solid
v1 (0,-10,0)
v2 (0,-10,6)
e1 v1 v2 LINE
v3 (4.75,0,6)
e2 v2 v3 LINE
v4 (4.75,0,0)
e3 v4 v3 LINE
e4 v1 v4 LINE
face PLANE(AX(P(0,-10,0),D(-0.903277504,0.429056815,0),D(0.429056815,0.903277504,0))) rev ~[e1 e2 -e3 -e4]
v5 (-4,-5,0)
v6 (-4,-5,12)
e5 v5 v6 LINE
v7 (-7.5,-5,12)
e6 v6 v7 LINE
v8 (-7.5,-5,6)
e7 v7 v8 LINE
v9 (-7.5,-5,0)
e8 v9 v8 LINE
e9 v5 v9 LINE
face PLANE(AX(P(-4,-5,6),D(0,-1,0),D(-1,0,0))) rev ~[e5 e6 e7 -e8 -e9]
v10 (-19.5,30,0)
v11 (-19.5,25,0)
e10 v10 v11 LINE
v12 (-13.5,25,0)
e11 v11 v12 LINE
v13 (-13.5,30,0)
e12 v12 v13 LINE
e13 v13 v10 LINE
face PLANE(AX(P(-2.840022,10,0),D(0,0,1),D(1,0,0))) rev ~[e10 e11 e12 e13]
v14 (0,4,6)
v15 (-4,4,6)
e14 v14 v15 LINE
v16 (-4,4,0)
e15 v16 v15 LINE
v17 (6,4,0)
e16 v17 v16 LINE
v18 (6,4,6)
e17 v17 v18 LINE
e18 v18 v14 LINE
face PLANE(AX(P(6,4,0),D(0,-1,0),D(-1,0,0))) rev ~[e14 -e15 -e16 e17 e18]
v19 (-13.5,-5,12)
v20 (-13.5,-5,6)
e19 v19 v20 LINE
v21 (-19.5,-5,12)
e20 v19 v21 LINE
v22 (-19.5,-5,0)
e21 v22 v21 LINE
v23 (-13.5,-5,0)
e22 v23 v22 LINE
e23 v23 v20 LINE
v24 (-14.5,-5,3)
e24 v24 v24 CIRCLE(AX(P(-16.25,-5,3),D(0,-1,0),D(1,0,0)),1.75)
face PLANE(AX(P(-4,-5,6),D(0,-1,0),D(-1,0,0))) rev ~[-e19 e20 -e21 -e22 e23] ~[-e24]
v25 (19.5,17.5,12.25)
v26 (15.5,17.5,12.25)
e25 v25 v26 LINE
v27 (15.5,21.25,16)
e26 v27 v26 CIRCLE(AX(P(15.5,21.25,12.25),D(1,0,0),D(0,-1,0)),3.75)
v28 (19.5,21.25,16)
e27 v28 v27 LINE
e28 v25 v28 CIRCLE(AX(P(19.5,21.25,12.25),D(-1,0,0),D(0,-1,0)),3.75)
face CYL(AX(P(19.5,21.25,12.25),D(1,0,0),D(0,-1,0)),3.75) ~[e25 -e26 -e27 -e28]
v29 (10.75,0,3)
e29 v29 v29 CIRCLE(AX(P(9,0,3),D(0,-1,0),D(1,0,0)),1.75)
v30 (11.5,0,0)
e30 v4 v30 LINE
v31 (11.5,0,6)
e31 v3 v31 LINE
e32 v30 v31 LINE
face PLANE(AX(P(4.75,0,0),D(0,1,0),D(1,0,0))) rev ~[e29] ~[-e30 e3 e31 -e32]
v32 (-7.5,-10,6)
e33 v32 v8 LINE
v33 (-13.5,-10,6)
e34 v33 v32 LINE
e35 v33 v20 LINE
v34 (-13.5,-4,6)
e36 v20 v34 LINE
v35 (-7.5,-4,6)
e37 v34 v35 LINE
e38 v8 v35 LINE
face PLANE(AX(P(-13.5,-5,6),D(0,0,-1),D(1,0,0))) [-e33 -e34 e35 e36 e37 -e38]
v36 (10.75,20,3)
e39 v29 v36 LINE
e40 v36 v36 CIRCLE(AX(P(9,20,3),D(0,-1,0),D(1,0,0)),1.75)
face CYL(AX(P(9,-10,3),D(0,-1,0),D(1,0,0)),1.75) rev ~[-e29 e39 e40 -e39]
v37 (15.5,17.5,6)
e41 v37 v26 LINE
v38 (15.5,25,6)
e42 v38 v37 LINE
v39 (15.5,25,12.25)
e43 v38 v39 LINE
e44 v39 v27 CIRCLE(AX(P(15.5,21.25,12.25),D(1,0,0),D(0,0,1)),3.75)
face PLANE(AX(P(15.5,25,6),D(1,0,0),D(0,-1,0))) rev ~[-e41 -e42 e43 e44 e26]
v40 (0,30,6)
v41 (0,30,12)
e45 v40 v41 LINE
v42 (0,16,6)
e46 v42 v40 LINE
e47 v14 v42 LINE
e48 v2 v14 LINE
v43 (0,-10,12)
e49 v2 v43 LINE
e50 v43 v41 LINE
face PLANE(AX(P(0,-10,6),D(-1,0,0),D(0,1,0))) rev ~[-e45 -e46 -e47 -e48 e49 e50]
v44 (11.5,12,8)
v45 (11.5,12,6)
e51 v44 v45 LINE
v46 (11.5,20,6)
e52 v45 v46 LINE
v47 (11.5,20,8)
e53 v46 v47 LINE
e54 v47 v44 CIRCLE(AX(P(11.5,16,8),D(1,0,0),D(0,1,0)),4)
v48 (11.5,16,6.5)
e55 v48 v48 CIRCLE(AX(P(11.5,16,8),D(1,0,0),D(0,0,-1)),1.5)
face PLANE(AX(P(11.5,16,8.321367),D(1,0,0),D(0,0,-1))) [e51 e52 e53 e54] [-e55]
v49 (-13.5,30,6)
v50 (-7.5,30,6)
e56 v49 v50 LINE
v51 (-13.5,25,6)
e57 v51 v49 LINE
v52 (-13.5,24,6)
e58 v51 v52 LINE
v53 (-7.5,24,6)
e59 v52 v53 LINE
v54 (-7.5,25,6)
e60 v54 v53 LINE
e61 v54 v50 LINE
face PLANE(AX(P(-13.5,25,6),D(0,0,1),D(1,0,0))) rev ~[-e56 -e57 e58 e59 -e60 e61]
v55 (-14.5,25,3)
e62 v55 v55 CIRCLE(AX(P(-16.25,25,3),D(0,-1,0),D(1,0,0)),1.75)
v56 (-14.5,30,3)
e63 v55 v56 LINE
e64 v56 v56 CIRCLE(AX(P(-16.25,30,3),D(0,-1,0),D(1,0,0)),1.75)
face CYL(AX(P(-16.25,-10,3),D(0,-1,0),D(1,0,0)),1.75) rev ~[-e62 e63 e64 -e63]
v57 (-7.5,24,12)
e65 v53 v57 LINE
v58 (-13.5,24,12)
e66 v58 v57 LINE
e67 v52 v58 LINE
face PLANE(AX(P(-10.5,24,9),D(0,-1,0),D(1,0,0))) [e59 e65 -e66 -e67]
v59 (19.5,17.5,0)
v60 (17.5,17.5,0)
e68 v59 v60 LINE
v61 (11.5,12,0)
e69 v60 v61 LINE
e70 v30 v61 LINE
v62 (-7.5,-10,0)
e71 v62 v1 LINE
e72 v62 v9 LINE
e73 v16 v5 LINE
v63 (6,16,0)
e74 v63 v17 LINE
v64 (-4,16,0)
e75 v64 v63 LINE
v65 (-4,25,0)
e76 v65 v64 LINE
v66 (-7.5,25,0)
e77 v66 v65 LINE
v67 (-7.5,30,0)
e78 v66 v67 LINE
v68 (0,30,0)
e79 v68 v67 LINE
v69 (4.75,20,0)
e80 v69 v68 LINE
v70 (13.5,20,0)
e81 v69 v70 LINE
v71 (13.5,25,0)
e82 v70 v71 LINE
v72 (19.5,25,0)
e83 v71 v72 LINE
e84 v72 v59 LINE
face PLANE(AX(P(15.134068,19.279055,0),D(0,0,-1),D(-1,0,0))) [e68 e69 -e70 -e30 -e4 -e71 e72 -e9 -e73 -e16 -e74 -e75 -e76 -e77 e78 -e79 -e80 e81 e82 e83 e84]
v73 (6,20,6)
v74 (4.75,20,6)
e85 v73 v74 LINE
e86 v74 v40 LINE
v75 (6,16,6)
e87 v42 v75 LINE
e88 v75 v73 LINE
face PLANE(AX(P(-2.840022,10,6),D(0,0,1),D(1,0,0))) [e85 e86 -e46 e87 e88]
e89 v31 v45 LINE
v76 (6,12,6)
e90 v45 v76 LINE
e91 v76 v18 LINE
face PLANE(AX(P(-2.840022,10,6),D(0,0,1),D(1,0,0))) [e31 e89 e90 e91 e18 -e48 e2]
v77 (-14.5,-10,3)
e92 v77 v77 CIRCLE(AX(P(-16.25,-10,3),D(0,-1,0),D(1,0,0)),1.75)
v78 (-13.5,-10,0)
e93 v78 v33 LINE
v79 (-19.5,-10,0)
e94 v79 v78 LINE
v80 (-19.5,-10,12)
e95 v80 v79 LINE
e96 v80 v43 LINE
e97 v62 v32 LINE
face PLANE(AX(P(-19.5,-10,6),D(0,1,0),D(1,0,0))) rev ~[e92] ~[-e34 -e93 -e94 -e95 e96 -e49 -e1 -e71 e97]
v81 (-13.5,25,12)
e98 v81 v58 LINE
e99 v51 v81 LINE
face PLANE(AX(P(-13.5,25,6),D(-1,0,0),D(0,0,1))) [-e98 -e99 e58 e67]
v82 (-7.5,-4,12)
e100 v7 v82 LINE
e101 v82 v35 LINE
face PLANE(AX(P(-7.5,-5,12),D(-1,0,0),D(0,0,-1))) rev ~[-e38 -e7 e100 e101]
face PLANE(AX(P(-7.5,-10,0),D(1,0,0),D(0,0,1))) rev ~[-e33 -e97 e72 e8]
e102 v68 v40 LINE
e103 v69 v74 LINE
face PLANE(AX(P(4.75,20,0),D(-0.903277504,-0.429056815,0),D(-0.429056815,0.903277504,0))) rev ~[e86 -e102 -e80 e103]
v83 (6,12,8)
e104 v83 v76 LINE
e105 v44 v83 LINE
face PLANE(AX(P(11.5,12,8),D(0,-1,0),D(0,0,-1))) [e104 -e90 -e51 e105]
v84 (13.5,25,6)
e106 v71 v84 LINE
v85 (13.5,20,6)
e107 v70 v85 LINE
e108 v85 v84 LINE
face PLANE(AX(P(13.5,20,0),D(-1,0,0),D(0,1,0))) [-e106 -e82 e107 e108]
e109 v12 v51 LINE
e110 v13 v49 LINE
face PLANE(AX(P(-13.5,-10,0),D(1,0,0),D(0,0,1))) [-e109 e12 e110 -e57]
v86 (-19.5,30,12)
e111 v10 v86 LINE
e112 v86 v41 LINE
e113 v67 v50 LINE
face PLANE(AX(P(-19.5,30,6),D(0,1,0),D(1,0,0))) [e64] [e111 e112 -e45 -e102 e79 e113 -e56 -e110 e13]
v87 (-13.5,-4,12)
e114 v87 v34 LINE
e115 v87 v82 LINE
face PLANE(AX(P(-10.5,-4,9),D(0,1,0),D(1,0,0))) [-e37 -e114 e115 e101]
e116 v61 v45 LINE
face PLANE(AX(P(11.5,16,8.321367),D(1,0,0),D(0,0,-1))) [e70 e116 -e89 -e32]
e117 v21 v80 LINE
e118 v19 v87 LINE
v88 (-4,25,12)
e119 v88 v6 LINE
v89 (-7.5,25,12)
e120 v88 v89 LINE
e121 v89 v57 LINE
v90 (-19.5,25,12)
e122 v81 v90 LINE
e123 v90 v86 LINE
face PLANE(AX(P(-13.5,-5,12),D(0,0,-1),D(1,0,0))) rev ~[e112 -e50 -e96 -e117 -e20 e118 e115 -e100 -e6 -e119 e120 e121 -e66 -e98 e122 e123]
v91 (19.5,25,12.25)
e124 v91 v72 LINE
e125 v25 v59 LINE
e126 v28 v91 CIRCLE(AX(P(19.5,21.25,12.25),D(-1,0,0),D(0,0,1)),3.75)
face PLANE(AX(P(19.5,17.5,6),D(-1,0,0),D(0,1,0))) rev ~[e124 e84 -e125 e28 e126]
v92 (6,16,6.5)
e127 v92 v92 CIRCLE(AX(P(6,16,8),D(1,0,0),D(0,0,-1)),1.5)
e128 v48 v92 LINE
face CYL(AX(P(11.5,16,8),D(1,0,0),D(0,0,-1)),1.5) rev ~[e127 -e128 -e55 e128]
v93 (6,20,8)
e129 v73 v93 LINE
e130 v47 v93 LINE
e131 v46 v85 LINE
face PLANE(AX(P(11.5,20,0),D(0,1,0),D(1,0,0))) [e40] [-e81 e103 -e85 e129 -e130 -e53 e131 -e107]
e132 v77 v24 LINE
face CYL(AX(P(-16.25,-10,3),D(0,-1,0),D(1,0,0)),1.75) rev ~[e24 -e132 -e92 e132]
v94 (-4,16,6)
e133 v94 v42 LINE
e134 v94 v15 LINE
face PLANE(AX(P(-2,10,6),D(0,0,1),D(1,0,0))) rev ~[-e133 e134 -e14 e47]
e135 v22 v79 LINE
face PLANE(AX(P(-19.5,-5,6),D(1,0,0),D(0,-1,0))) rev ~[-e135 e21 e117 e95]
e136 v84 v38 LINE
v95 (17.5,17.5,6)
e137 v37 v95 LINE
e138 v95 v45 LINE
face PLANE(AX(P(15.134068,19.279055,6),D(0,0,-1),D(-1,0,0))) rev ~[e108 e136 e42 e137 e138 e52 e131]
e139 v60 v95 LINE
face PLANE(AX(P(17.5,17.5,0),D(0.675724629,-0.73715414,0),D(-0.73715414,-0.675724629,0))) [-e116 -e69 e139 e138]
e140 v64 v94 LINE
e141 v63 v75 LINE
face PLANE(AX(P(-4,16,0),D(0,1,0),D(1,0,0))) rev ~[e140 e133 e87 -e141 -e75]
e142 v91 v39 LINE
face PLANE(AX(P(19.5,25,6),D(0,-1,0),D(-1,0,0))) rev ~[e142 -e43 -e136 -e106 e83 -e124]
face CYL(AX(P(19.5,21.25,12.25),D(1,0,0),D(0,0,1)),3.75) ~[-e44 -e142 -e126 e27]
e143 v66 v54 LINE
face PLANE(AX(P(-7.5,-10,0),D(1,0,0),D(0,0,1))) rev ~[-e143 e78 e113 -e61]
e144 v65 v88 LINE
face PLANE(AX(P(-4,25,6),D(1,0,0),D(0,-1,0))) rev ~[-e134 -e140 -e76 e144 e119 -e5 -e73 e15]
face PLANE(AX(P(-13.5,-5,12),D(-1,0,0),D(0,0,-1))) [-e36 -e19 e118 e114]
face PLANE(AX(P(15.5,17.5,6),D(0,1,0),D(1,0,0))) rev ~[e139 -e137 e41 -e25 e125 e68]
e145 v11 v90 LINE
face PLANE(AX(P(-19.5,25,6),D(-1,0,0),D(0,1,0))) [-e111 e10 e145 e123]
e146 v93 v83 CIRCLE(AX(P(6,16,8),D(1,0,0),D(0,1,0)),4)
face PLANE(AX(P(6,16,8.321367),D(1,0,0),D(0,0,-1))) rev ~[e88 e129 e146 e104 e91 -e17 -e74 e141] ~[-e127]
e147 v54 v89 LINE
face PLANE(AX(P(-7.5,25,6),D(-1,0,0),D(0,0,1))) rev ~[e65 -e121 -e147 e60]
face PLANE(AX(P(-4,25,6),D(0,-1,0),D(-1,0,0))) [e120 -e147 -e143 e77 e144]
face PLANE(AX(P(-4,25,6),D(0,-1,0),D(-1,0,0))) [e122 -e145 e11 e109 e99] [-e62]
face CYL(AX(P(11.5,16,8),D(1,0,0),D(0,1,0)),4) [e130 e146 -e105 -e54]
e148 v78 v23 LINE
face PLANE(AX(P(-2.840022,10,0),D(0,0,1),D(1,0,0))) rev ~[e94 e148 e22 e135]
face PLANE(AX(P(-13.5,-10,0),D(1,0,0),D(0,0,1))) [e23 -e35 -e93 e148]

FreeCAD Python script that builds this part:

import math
import FreeCAD as App
import Part
import Sketcher

V = App.Vector
Q = App.Units.Quantity


def add_polygon(sketch, points):
    """Adds a closed chain of lines whose ends are joined by coincident constraints."""
    first, n = sketch.GeometryCount, len(points)
    for a, b in zip(points, points[1:] + points[:1]):
        sketch.addGeometry(Part.LineSegment(App.Vector(*a, 0), App.Vector(*b, 0)), False)
    for i in range(n):
        sketch.addConstraint(Sketcher.Constraint("Coincident", first + i, 2, first + (i + 1) % n, 1))

doc = App.newDocument("Part")
body = doc.addObject("PartDesign::Body", "Body")

sketch1 = doc.addObject("Sketcher::SketchObject", "Sketch")
body.addObject(sketch1)
sketch1.AttachmentSupport = (doc.XY_Plane, [""])
sketch1.MapMode = "FlatFace"
add_polygon(sketch1, [(6, 4), (-4, 4), (-4, -5), (-20, -5), (-20, -10), (0, -10), (5, 0), (12, 0), (12, 20), (5, 20), (0, 30), (-20, 30), (-20, 25), (-4, 25), (-4, 16), (6, 16)])
sketch1.addConstraint([
    Sketcher.Constraint("Horizontal", 0),
    Sketcher.Constraint("Vertical", 1),
    Sketcher.Constraint("Horizontal", 2),
    Sketcher.Constraint("Vertical", 3),
    Sketcher.Constraint("Horizontal", 4),
    Sketcher.Constraint("Horizontal", 6),
    Sketcher.Constraint("Vertical", 7),
    Sketcher.Constraint("Horizontal", 8),
    Sketcher.Constraint("Horizontal", 10),
    Sketcher.Constraint("Vertical", 11),
    Sketcher.Constraint("Horizontal", 12),
    Sketcher.Constraint("Vertical", 13),
    Sketcher.Constraint("Horizontal", 14),
    Sketcher.Constraint("Vertical", 15),
    Sketcher.Constraint("PointOnObject", 4, 2, -2),
    Sketcher.Constraint("PointOnObject", 5, 2, -1),
    Sketcher.Constraint("PointOnObject", 9, 2, -2),
    Sketcher.Constraint("Vertical", 5, 2, 8, 2),
    Sketcher.Constraint("Vertical", 3, 2, 10, 2),
    Sketcher.Constraint("Vertical", 1, 2, 12, 2),
    Sketcher.Constraint("Equal", 3, 11),
    Sketcher.Constraint("Equal", 1, 13),
    Sketcher.Constraint("Equal", 5, 9),
    Sketcher.Constraint("DistanceX", 0, 2, 0, 1, Q("10 mm")),
    Sketcher.Constraint("DistanceY", 1, 2, 1, 1, Q("9 mm")),
    Sketcher.Constraint("DistanceY", 3, 2, 3, 1, Q("5 mm")),
    Sketcher.Constraint("DistanceY", 7, 1, 7, 2, Q("20 mm")),
    Sketcher.Constraint("DistanceY", 15, 2, 15, 1, Q("12 mm")),
    Sketcher.Constraint("DistanceX", 2, 2, 2, 1, Q("15.5 mm")),
    Sketcher.Constraint("DistanceX", 4, 1, 4, 2, Q("19.5 mm")),
    Sketcher.Constraint("DistanceX", 2, 2, 6, 2, Q("31 mm")),
    Sketcher.Constraint("DistanceX", 6, 1, 6, 2, Q("6.75 mm")),
])
pad1 = doc.addObject("PartDesign::Pad", "Pad")
body.addObject(pad1)
pad1.Profile = sketch1
pad1.Length = 6

sketch2 = doc.addObject("Sketcher::SketchObject", "Sketch001")
body.addObject(sketch2)
sketch2.AttachmentSupport = (doc.XZ_Plane, [""])
sketch2.MapMode = "FlatFace"
sketch2.AttachmentOffset = App.Placement(V(0, 0, 10), App.Rotation())
sketch2.addGeometry([
    Part.Circle(V(9, 3, 0), V(0, 0, 1), 1.8),
    Part.Circle(V(-16.2, 3, 0), V(0, 0, 1), 1.8),
], False)
sketch2.addConstraint([
    Sketcher.Constraint("Equal", 0, 1),
    Sketcher.Constraint("Horizontal", 0, 3, 1, 3),
    Sketcher.Constraint("Diameter", 0, Q("3.5 mm")),
    Sketcher.Constraint("DistanceX", -1, 1, 0, 3, Q("9 mm")),
    Sketcher.Constraint("DistanceY", -1, 1, 0, 3, Q("3 mm")),
    Sketcher.Constraint("DistanceX", 1, 3, -1, 1, Q("16.25 mm")),
])
pocket1 = doc.addObject("PartDesign::Pocket", "Pocket")
body.addObject(pocket1)
pocket1.Profile = sketch2
pocket1.Type = "ThroughAll"

sketch3 = doc.addObject("Sketcher::SketchObject", "Sketch002")
body.addObject(sketch3)
sketch3.AttachmentSupport = (doc.YZ_Plane, [""])
sketch3.MapMode = "FlatFace"
sketch3.AttachmentOffset = App.Placement(V(0, 0, 11.5), App.Rotation())
sketch3.addGeometry([
    Part.LineSegment(V(12, 8, 0), V(12, 6, 0)),
    Part.LineSegment(V(12, 6, 0), V(20, 6, 0)),
    Part.LineSegment(V(20, 6, 0), V(20, 8, 0)),
    Part.ArcOfCircle(Part.Circle(V(16, 8, 0), V(0, 0, 1), 4), math.radians(0), math.radians(180)),
    Part.Circle(V(16, 8, 0), V(0, 0, 1), 1.5),
], False)
sketch3.addConstraint([
    Sketcher.Constraint("Coincident", 0, 2, 1, 1),
    Sketcher.Constraint("Coincident", 1, 2, 2, 1),
    Sketcher.Constraint("Tangent", 2, 2, 3, 1),
    Sketcher.Constraint("Tangent", 3, 2, 0, 1),
    Sketcher.Constraint("Vertical", 0),
    Sketcher.Constraint("Horizontal", 1),
    Sketcher.Constraint("Vertical", 2),
    Sketcher.Constraint("Coincident", 4, 3, 3, 3),
    Sketcher.Constraint("Diameter", 4, Q("3 mm")),
    Sketcher.Constraint("Radius", 3, Q("4 mm")),
    Sketcher.Constraint("DistanceY", 0, 2, 0, 1, Q("2 mm")),
    Sketcher.Constraint("DistanceX", -1, 1, 3, 3, Q("16 mm")),
    Sketcher.Constraint("DistanceY", -1, 1, 3, 3, Q("8 mm")),
])
pad2 = doc.addObject("PartDesign::Pad", "Pad001")
body.addObject(pad2)
pad2.Profile = sketch3
pad2.Length = 5.5
pad2.Reversed = True

sketch4 = doc.addObject("Sketcher::SketchObject", "Sketch003")
body.addObject(sketch4)
sketch4.AttachmentSupport = (doc.XY_Plane, [""])
sketch4.MapMode = "FlatFace"
sketch4.AttachmentOffset = App.Placement(V(0, 0, 6), App.Rotation())
add_polygon(sketch4, [(0, 30), (-20, 30), (-20, 25), (-4, 25), (-4, -5), (-20, -5), (-20, -10), (0, -10)])
sketch4.addConstraint([
    Sketcher.Constraint("Horizontal", 0),
    Sketcher.Constraint("Vertical", 1),
    Sketcher.Constraint("Horizontal", 2),
    Sketcher.Constraint("Vertical", 3),
    Sketcher.Constraint("Horizontal", 4),
    Sketcher.Constraint("Vertical", 5),
    Sketcher.Constraint("Horizontal", 6),
    Sketcher.Constraint("Vertical", 7),
    Sketcher.Constraint("PointOnObject", 6, 2, -2),
    Sketcher.Constraint("Vertical", 1, 2, 4, 2),
    Sketcher.Constraint("Equal", 1, 5),
    Sketcher.Constraint("DistanceY", 1, 2, 1, 1, Q("5 mm")),
    Sketcher.Constraint("DistanceY", 3, 2, 3, 1, Q("30 mm")),
    Sketcher.Constraint("DistanceX", 0, 2, 0, 1, Q("19.5 mm")),
    Sketcher.Constraint("DistanceX", 2, 1, 2, 2, Q("15.5 mm")),
    Sketcher.Constraint("DistanceY", -1, 1, 0, 2, Q("30 mm")),
])
pad3 = doc.addObject("PartDesign::Pad", "Pad002")
body.addObject(pad3)
pad3.Profile = sketch4
pad3.Length = 6

sketch5 = doc.addObject("Sketcher::SketchObject", "Sketch004")
body.addObject(sketch5)
sketch5.AttachmentSupport = (doc.XZ_Plane, [""])
sketch5.MapMode = "FlatFace"
sketch5.AttachmentOffset = App.Placement(V(0, 0, 10), App.Rotation())
add_polygon(sketch5, [(-14, 6), (-14, 0), (-8, 0), (-8, 6)])
sketch5.addConstraint([
    Sketcher.Constraint("Vertical", 0),
    Sketcher.Constraint("Horizontal", 1),
    Sketcher.Constraint("Vertical", 2),
    Sketcher.Constraint("Horizontal", 3),
    Sketcher.Constraint("PointOnObject", 0, 2, -1),
    Sketcher.Constraint("Equal", 3, 0),
    Sketcher.Constraint("DistanceX", 1, 1, 1, 2, Q("6 mm")),
    Sketcher.Constraint("DistanceX", 0, 2, -1, 1, Q("13.5 mm")),
])
pocket2 = doc.addObject("PartDesign::Pocket", "Pocket001")
body.addObject(pocket2)
pocket2.Profile = sketch5
pocket2.Length = 40

sketch6 = doc.addObject("Sketcher::SketchObject", "Sketch005")
body.addObject(sketch6)
sketch6.AttachmentSupport = (doc.XY_Plane, [""])
sketch6.MapMode = "FlatFace"
add_polygon(sketch6, [(17.5, 17.5), (11.5, 12), (11.5, 20), (13.5, 20), (13.5, 25), (19.5, 25), (19.5, 17.5)])
sketch6.addConstraint([
    Sketcher.Constraint("Vertical", 1),
    Sketcher.Constraint("Horizontal", 2),
    Sketcher.Constraint("Vertical", 3),
    Sketcher.Constraint("Horizontal", 4),
    Sketcher.Constraint("Vertical", 5),
    Sketcher.Constraint("Horizontal", 6),
    Sketcher.Constraint("Equal", 2, 6),
    Sketcher.Constraint("DistanceX", 2, 1, 2, 2, Q("2 mm")),
    Sketcher.Constraint("DistanceX", 4, 1, 4, 2, Q("6 mm")),
    Sketcher.Constraint("DistanceY", 1, 1, 1, 2, Q("8 mm")),
    Sketcher.Constraint("DistanceY", 3, 1, 3, 2, Q("5 mm")),
    Sketcher.Constraint("DistanceY", 5, 2, 5, 1, Q("7.5 mm")),
    Sketcher.Constraint("DistanceY", -1, 1, 0, 2, Q("12 mm")),
    Sketcher.Constraint("DistanceX", -1, 1, 0, 2, Q("11.5 mm")),
])
pad4 = doc.addObject("PartDesign::Pad", "Pad003")
body.addObject(pad4)
pad4.Profile = sketch6
pad4.Length = 6

sketch7 = doc.addObject("Sketcher::SketchObject", "Sketch006")
body.addObject(sketch7)
sketch7.AttachmentSupport = (doc.XY_Plane, [""])
sketch7.MapMode = "FlatFace"
sketch7.AttachmentOffset = App.Placement(V(0, 0, 6), App.Rotation())
add_polygon(sketch7, [(19.5, 25), (15.5, 25), (15.5, 17.5), (19.5, 17.5)])
sketch7.addConstraint([
    Sketcher.Constraint("Horizontal", 0),
    Sketcher.Constraint("Vertical", 1),
    Sketcher.Constraint("Horizontal", 2),
    Sketcher.Constraint("Vertical", 3),
    Sketcher.Constraint("DistanceX", 0, 2, 0, 1, Q("4 mm")),
    Sketcher.Constraint("DistanceY", 1, 2, 1, 1, Q("7.5 mm")),
    Sketcher.Constraint("DistanceY", -1, 1, 0, 2, Q("25 mm")),
    Sketcher.Constraint("DistanceX", -1, 1, 0, 2, Q("15.5 mm")),
])
pad5 = doc.addObject("PartDesign::Pad", "Pad004")
body.addObject(pad5)
pad5.Profile = sketch7
pad5.Length = 10

sketch8 = doc.addObject("Sketcher::SketchObject", "Sketch007")
body.addObject(sketch8)
sketch8.AttachmentSupport = (doc.YZ_Plane, [""])
sketch8.MapMode = "FlatFace"
sketch8.AttachmentOffset = App.Placement(V(0, 0, 19.5), App.Rotation())
sketch8.addGeometry([
    Part.LineSegment(V(25, 12.2, 0), V(25, 16, 0)),
    Part.LineSegment(V(25, 16, 0), V(21.2, 16, 0)),
    Part.ArcOfCircle(Part.Circle(V(21.2, 12.2, 0), V(0, 0, 1), 3.8), math.radians(0), math.radians(90)),
], False)
sketch8.addConstraint([
    Sketcher.Constraint("Coincident", 0, 2, 1, 1),
    Sketcher.Constraint("Tangent", 1, 2, 2, 2),
    Sketcher.Constraint("Tangent", 2, 1, 0, 1),
    Sketcher.Constraint("Vertical", 0),
    Sketcher.Constraint("Horizontal", 1),
    Sketcher.Constraint("Radius", 2, Q("3.75 mm")),
    Sketcher.Constraint("DistanceX", -1, 1, 0, 2, Q("25 mm")),
    Sketcher.Constraint("DistanceY", -1, 1, 0, 2, Q("16 mm")),
])
pocket3 = doc.addObject("PartDesign::Pocket", "Pocket002")
body.addObject(pocket3)
pocket3.Profile = sketch8
pocket3.Type = "UpToFirst"

sketch9 = doc.addObject("Sketcher::SketchObject", "Sketch008")
body.addObject(sketch9)
sketch9.AttachmentSupport = (doc.YZ_Plane, [""])
sketch9.MapMode = "FlatFace"
sketch9.AttachmentOffset = App.Placement(V(0, 0, 19.5), App.Rotation())
sketch9.addGeometry([
    Part.ArcOfCircle(Part.Circle(V(21.3, 12.2, 0), V(0, 0, 1), 3.8), math.radians(90), math.radians(180)),
    Part.LineSegment(V(21.2, 16, 0), V(17.5, 16, 0)),
    Part.LineSegment(V(17.5, 16, 0), V(17.5, 12.2, 0)),
], False)
sketch9.addConstraint([
    Sketcher.Constraint("Tangent", 0, 1, 1, 1),
    Sketcher.Constraint("Coincident", 1, 2, 2, 1),
    Sketcher.Constraint("Tangent", 2, 2, 0, 2),
    Sketcher.Constraint("Horizontal", 1),
    Sketcher.Constraint("Vertical", 2),
    Sketcher.Constraint("Radius", 0, Q("3.75 mm")),
    Sketcher.Constraint("DistanceY", -1, 1, 0, 1, Q("16 mm")),
    Sketcher.Constraint("DistanceX", -1, 1, 1, 2, Q("17.5 mm")),
])
pocket4 = doc.addObject("PartDesign::Pocket", "Pocket003")
body.addObject(pocket4)
pocket4.Profile = sketch9
pocket4.Type = "UpToFirst"

sketch10 = doc.addObject("Sketcher::SketchObject", "Sketch009")
body.addObject(sketch10)
sketch10.AttachmentSupport = (doc.XZ_Plane, [""])
sketch10.MapMode = "FlatFace"
sketch10.AttachmentOffset = App.Placement(V(0, 0, -25), App.Rotation())
add_polygon(sketch10, [(-14, 12), (-14, 6), (-8, 6), (-8, 12)])
sketch10.addConstraint([
    Sketcher.Constraint("Vertical", 0),
    Sketcher.Constraint("Horizontal", 1),
    Sketcher.Constraint("Vertical", 2),
    Sketcher.Constraint("Horizontal", 3),
    Sketcher.Constraint("Equal", 3, 0),
    Sketcher.Constraint("DistanceX", 1, 1, 1, 2, Q("6 mm")),
    Sketcher.Constraint("DistanceY", -1, 1, 0, 2, Q("6 mm")),
    Sketcher.Constraint("DistanceX", 0, 2, -1, 1, Q("13.5 mm")),
])
pad6 = doc.addObject("PartDesign::Pad", "Pad005")
body.addObject(pad6)
pad6.Profile = sketch10
pad6.Length = 1

sketch11 = doc.addObject("Sketcher::SketchObject", "Sketch010")
body.addObject(sketch11)
sketch11.AttachmentSupport = (doc.XZ_Plane, [""])
sketch11.MapMode = "FlatFace"
sketch11.AttachmentOffset = App.Placement(V(0, 0, 5), App.Rotation())
add_polygon(sketch11, [(-14, 6), (-14, 12), (-8, 12), (-8, 6)])
sketch11.addConstraint([
    Sketcher.Constraint("Vertical", 0),
    Sketcher.Constraint("Horizontal", 1),
    Sketcher.Constraint("Vertical", 2),
    Sketcher.Constraint("Horizontal", 3),
    Sketcher.Constraint("Equal", 3, 0),
    Sketcher.Constraint("DistanceX", 1, 1, 1, 2, Q("6 mm")),
    Sketcher.Constraint("DistanceY", -1, 1, 0, 2, Q("12 mm")),
    Sketcher.Constraint("DistanceX", 0, 2, -1, 1, Q("13.5 mm")),
])
pad7 = doc.addObject("PartDesign::Pad", "Pad006")
body.addObject(pad7)
pad7.Profile = sketch11
pad7.Length = 1
pad7.Reversed = True

doc.recompute()
